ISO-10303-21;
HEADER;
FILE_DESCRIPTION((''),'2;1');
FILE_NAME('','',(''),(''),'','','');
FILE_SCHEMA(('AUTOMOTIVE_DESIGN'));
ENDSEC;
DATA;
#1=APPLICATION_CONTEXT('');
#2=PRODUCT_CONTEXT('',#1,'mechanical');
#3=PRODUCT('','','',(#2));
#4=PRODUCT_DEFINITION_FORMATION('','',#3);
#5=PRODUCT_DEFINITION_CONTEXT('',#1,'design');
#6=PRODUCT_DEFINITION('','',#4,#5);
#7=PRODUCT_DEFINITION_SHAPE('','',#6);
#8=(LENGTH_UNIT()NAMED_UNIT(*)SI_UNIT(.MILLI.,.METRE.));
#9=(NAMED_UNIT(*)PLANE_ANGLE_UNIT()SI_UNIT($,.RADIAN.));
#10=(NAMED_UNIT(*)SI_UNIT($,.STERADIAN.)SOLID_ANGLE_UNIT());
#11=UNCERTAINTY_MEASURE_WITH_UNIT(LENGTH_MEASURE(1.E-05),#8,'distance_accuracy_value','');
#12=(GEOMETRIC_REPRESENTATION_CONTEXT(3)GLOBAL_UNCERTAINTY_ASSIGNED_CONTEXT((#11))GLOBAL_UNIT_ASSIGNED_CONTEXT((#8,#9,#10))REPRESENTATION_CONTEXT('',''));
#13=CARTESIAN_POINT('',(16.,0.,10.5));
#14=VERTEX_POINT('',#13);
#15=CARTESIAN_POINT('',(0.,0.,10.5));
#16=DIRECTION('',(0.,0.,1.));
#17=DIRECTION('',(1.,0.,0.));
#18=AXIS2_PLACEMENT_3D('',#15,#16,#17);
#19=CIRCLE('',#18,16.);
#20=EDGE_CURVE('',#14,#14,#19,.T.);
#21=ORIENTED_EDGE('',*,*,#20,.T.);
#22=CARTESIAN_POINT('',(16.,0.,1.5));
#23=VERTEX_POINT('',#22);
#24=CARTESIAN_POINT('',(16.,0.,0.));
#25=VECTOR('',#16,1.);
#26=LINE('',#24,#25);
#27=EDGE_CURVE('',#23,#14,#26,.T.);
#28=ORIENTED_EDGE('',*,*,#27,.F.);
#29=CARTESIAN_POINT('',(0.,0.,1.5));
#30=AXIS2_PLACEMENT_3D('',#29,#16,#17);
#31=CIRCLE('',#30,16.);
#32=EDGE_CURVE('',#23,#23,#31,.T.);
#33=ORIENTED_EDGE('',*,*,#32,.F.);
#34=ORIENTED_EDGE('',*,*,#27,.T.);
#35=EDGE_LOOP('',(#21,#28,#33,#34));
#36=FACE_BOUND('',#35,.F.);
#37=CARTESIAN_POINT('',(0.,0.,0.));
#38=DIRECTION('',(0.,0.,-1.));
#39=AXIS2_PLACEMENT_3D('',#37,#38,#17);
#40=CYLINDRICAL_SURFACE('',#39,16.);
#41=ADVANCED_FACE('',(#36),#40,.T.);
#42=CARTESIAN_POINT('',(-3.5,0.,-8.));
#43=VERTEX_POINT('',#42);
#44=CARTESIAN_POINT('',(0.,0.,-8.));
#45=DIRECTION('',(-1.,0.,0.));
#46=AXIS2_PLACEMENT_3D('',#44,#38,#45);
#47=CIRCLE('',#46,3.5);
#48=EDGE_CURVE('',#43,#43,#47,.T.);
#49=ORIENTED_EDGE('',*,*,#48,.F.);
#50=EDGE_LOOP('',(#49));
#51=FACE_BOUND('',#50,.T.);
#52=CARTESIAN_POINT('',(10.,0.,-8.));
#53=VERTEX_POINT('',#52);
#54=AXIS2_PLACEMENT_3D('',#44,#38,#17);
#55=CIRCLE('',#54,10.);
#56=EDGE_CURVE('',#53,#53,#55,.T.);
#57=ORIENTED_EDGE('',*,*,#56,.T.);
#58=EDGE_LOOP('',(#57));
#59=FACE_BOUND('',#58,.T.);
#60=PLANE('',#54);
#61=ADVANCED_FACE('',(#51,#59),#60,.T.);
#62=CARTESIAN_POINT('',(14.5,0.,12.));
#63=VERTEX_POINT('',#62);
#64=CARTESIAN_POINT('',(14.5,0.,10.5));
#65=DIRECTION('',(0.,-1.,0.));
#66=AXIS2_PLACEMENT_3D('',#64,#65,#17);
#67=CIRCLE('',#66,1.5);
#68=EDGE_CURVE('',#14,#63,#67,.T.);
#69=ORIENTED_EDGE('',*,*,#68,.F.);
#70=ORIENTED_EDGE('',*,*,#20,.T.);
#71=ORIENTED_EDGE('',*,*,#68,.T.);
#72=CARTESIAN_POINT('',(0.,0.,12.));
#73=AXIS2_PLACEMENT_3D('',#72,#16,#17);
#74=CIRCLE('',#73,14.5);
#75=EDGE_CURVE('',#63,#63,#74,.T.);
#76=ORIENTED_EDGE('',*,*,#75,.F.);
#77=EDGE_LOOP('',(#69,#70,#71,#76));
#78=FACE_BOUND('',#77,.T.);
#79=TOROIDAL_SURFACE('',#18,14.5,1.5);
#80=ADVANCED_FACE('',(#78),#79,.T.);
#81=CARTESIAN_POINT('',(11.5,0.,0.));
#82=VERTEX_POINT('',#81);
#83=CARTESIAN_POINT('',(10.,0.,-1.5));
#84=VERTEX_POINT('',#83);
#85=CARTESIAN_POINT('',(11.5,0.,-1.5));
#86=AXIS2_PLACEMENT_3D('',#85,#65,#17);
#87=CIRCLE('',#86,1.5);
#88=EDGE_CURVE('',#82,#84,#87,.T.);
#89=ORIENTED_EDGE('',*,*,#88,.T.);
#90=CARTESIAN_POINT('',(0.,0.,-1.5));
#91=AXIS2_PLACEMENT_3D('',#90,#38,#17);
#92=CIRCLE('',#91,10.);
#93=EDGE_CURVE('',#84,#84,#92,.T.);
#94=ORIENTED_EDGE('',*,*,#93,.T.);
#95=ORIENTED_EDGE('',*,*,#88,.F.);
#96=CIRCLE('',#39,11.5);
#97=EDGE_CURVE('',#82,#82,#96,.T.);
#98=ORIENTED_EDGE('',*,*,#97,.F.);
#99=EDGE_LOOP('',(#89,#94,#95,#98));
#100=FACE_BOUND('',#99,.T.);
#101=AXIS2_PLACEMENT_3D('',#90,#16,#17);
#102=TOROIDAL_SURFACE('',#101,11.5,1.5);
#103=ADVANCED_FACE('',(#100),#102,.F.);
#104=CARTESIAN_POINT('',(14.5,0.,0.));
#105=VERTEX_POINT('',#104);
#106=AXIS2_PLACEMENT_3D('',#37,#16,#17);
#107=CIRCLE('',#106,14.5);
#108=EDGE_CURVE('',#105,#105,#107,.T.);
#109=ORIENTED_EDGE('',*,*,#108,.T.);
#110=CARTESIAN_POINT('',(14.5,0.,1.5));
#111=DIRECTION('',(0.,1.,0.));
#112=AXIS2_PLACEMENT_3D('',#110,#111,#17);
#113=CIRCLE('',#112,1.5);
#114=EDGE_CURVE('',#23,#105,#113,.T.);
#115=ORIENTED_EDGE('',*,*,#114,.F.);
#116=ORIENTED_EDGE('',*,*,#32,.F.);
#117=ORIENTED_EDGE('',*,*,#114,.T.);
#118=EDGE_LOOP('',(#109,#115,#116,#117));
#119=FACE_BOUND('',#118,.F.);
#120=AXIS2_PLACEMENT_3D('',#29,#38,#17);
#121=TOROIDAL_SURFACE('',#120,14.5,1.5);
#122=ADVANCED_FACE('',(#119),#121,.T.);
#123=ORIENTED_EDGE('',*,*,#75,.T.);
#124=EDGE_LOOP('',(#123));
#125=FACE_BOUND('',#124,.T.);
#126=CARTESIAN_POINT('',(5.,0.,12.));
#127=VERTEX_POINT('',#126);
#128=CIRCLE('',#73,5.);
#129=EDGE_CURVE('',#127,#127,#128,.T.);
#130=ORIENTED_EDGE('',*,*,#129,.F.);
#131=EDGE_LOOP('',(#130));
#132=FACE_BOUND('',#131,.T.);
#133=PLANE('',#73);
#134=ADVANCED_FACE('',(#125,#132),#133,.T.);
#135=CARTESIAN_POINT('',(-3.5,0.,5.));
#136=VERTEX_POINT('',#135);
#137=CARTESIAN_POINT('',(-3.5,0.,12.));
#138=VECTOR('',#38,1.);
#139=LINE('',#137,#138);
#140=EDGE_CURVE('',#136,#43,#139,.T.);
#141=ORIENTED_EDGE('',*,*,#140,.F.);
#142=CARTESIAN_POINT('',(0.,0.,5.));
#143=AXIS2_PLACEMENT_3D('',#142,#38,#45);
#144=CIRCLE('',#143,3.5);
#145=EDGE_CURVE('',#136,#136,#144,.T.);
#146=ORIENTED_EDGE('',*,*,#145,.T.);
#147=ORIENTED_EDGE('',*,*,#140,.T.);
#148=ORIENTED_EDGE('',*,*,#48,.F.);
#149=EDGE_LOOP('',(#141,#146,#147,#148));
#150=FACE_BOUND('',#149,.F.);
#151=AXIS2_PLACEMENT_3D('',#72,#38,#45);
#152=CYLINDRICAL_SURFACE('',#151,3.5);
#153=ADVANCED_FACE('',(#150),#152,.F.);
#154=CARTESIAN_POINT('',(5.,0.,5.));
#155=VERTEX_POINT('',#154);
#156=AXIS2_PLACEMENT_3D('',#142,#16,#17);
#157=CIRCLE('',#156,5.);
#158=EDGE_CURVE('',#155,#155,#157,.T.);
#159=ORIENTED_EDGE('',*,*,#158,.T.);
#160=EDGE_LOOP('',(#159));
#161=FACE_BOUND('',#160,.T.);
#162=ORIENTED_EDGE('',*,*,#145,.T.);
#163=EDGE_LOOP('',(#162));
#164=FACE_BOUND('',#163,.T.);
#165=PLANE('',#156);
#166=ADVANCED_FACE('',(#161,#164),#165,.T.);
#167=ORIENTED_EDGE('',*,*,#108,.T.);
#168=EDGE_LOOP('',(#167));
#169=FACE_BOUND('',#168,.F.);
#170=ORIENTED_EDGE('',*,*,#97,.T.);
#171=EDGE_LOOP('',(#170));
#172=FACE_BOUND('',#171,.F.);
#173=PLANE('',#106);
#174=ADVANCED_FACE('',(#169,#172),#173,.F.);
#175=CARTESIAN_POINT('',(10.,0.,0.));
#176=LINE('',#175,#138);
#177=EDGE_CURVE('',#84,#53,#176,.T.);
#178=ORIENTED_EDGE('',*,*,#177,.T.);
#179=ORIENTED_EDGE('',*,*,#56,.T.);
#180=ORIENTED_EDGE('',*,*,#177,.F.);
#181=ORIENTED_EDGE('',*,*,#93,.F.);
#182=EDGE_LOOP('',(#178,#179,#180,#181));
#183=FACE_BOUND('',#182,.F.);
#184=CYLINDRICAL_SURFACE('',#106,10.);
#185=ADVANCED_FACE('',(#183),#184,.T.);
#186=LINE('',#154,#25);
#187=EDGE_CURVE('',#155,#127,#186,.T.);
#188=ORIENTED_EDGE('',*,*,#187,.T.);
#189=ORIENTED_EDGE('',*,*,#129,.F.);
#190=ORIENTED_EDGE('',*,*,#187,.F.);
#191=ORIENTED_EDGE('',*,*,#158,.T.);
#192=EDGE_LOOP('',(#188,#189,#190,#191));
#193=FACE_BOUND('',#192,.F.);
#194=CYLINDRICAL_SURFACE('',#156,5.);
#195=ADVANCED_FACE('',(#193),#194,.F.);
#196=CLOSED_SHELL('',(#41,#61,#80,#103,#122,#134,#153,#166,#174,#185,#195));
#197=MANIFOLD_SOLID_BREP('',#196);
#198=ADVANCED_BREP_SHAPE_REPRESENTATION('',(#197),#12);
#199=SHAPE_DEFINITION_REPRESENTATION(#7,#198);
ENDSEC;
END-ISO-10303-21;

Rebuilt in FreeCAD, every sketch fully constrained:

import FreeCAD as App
import Part
import Sketcher


def edges_at(feature, points):
    """Names of the edges that pass closest to the given points."""
    edges = feature.Shape.Edges
    near = lambda p: min(range(len(edges)), key=lambda i: edges[i].distToShape(Part.Vertex(*p))[0])
    return sorted({f"Edge{near(p) + 1}" for p in points})

doc = App.newDocument("Part")
params = doc.addObject("Spreadsheet::Sheet", "Params")
for row, (alias, value) in enumerate([
    ("sketch1_diameter", "32 mm"),
    ("pad1_length", "12 mm"),
    ("sketch2_diameter", "20 mm"),
    ("pad2_length", "8 mm"),
    ("sketch3_diameter", "7 mm"),
    ("hole_diameter", "7 mm"),
    ("hole_cbore_diameter", "10 mm"),
    ("hole_cbore_depth", "7 mm"),
    ("fillet_radius", "1.5 mm"),
], start=1):
    params.set(f"A{row}", alias)
    params.set(f"B{row}", "=" + value)
    params.setAlias(f"B{row}", alias)

body = doc.addObject("PartDesign::Body", "Body")

# Sketch on XY plane
sketch1 = body.newObject("Sketcher::SketchObject", "Sketch")
sketch1.AttachmentSupport = (doc.getObject("XY_Plane"), [""])
sketch1.MapMode = "FlatFace"
sketch1.addGeometry(Part.Circle(App.Vector(0, 0, 0), App.Vector(0, 0, 1), 16), False)
sketch1.addConstraint([
    Sketcher.Constraint("Coincident", 0, 3, -1, 1),
    Sketcher.Constraint("Diameter", 0, 32.0),
])
sketch1.setExpression("Constraints[1]", "Params.sketch1_diameter")
pad1 = body.newObject("PartDesign::Pad", "Pad")
pad1.Profile = sketch1
pad1.setExpression("Length", "Params.pad1_length")

# Sketch on XY plane
sketch2 = body.newObject("Sketcher::SketchObject", "Sketch001")
sketch2.AttachmentSupport = (doc.getObject("XY_Plane"), [""])
sketch2.MapMode = "FlatFace"
sketch2.addGeometry(Part.Circle(App.Vector(0, 0, 0), App.Vector(0, 0, 1), 10), False)
sketch2.addConstraint([
    Sketcher.Constraint("Coincident", 0, 3, -1, 1),
    Sketcher.Constraint("Diameter", 0, 20.0),
])
sketch2.setExpression("Constraints[1]", "Params.sketch2_diameter")
pad2 = body.newObject("PartDesign::Pad", "Pad001")
pad2.Profile = sketch2
pad2.setExpression("Length", "Params.pad2_length")
pad2.Reversed = True

# Sketch on XY plane
sketch3 = body.newObject("Sketcher::SketchObject", "Sketch002")
sketch3.AttachmentSupport = (doc.getObject("XY_Plane"), [""])
sketch3.MapMode = "FlatFace"
sketch3.AttachmentOffset = App.Placement(App.Vector(0, 0, 12), App.Rotation())
sketch3.addGeometry(Part.Circle(App.Vector(0, 0, 0), App.Vector(0, 0, 1), 3.5), False)
sketch3.addConstraint([
    Sketcher.Constraint("Coincident", 0, 3, -1, 1),
    Sketcher.Constraint("Diameter", 0, 7.0),
])
sketch3.setExpression("Constraints[1]", "Params.sketch3_diameter")
doc.recompute()
hole = body.newObject("PartDesign::Hole", "Hole")
hole.Profile = sketch3
hole.ThreadType = "None"
hole.setExpression("Diameter", "Params.hole_diameter")
hole.DepthType = "ThroughAll"
hole.HoleCutType = "Counterbore"
hole.setExpression("HoleCutDiameter", "Params.hole_cbore_diameter")
hole.setExpression("HoleCutDepth", "Params.hole_cbore_depth")
doc.recompute()

fillet = body.newObject("PartDesign::Fillet", "Fillet")
fillet.Base = (hole, edges_at(hole, [(-16, 0, 12), (-16, 0, 0), (-10, 0, 0)]))
fillet.setExpression("Radius", "Params.fillet_radius")

doc.recompute()
